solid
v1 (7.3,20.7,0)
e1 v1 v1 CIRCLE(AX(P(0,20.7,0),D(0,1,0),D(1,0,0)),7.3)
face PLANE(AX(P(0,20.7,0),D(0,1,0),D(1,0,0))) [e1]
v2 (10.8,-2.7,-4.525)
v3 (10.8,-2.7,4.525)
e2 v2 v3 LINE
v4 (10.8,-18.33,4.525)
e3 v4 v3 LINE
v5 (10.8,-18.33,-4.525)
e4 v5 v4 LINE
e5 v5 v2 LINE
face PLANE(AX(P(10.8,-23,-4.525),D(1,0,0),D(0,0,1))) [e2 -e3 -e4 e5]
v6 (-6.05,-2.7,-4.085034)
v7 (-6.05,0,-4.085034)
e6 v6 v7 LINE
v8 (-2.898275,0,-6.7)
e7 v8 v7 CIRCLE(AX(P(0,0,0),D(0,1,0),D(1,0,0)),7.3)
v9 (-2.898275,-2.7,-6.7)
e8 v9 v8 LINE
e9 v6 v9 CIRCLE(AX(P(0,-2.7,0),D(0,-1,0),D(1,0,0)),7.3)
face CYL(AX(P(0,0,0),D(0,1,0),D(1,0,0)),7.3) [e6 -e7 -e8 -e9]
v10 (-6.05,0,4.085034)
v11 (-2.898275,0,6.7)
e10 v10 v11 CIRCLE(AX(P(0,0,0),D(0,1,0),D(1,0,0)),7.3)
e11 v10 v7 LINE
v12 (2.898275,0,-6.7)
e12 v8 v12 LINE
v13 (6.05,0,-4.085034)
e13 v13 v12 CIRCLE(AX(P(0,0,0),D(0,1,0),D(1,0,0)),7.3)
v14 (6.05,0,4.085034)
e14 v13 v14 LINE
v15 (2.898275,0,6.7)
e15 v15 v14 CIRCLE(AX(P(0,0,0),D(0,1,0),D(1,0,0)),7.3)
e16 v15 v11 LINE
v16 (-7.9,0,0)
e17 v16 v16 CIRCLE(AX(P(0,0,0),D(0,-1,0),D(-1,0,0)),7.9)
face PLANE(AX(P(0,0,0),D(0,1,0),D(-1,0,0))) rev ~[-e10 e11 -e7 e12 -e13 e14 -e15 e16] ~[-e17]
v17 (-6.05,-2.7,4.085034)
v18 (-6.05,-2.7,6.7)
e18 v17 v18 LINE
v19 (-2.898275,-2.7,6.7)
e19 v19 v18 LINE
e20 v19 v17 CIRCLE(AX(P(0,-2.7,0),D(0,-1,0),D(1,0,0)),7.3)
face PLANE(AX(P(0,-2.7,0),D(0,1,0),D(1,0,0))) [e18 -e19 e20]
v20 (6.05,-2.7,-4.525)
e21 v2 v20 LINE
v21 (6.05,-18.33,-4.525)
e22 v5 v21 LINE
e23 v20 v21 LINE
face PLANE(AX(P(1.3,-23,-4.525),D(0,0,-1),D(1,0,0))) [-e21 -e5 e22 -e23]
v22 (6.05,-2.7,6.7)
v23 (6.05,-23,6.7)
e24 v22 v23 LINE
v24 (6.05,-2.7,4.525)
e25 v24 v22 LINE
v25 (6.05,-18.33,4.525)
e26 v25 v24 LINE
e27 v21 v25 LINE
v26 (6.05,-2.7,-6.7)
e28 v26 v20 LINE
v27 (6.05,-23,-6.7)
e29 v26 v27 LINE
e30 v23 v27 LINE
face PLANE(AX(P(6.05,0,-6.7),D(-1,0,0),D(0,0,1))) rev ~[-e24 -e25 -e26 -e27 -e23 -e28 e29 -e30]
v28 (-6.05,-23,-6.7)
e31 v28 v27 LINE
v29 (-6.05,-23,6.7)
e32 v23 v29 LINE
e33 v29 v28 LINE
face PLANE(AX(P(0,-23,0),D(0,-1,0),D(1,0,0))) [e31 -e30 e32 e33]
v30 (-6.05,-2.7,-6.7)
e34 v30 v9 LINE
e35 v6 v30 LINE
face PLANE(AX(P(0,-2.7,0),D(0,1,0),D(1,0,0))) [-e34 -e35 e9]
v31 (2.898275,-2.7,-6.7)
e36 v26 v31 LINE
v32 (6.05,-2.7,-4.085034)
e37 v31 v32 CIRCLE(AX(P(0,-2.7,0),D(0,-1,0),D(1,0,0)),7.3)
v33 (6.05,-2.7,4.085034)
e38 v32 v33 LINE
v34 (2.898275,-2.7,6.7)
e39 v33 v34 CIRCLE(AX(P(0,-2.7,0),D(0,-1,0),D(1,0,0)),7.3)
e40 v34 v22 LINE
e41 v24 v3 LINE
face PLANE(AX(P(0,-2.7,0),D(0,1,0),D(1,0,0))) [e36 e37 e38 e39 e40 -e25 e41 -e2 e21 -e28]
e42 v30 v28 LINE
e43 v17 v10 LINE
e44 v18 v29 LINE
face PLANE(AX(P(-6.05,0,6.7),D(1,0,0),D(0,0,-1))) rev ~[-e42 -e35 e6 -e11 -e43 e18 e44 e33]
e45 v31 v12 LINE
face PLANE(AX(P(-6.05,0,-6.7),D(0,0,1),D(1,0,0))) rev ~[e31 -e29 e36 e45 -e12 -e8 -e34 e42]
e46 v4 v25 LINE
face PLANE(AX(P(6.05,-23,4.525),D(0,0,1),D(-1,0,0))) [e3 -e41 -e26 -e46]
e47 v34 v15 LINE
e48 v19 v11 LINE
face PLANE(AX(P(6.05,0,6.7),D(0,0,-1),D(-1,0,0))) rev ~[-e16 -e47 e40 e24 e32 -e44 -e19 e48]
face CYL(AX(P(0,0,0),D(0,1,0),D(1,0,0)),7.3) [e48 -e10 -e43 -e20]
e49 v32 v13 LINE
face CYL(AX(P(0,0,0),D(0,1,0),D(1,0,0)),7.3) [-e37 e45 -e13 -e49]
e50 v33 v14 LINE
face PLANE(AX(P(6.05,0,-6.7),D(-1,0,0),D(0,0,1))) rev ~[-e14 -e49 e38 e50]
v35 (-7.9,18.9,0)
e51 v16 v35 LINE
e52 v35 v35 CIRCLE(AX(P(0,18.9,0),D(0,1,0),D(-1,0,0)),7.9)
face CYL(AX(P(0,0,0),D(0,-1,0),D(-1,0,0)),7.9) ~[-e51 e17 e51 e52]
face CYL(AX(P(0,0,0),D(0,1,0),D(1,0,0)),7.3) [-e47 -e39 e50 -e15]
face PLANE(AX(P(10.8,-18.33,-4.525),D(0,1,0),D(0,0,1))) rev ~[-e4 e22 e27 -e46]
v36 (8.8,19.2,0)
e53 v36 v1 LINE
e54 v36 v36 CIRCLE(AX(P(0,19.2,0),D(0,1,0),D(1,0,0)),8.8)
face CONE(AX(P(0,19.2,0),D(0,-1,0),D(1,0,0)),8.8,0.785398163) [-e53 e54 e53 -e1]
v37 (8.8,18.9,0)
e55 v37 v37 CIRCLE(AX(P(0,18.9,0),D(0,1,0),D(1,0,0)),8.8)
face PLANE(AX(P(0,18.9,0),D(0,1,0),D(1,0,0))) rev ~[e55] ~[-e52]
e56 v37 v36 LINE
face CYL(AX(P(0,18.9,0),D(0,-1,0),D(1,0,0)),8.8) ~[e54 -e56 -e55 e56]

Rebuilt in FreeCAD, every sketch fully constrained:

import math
import FreeCAD as App
import Part
import Sketcher
from FreeCAD import Vector


def edges_at(feature, points):
    """Names of the edges that pass closest to the given points."""
    edges = feature.Shape.Edges
    near = lambda p: min(range(len(edges)), key=lambda i: edges[i].distToShape(Part.Vertex(*p))[0])
    return sorted({f"Edge{near(p) + 1}" for p in points})

doc = App.newDocument("Part")
params = doc.addObject("Spreadsheet::Sheet", "Params")
for row, (alias, value) in enumerate([
    ("sketch1_diameter", "15.8 mm"),
    ("pad1_length", "18.9 mm"),
    ("sketch2_diameter", "17.6 mm"),
    ("pad2_length", "1.8 mm"),
    ("chamfer_size", "1.5 mm"),
    ("sketch3_width", "12.1 mm"),
    ("sketch3_height", "13.4 mm"),
    ("pad3_length", "23 mm"),
    ("sketch4_width", "9.5 mm"),
    ("sketch4_height", "9.05 mm"),
    ("pad4_length", "20.3 mm"),
    ("sketch5_width", "4.67 mm"),
    ("sketch5_height", "9.05 mm"),
    ("pocket1_length", "4.75 mm"),
    ("sketch6_radius", "8.35 mm"),
    ("sketch6_diameter", "14.6 mm"),
    ("pocket2_length", "2.7 mm"),
], start=1):
    params.set(f"A{row}", alias)
    params.set(f"B{row}", "=" + value)
    params.setAlias(f"B{row}", alias)

body = doc.addObject("PartDesign::Body", "Body")

# Sketch on XZ plane
sketch1 = body.newObject("Sketcher::SketchObject", "Sketch")
sketch1.AttachmentSupport = (doc.getObject("XZ_Plane"), [""])
sketch1.MapMode = "FlatFace"
sketch1.addGeometry(Part.Circle(Vector(0, 0, 0), Vector(0, 0, 1), 8), False)
sketch1.addConstraint([
    Sketcher.Constraint("Coincident", 0, 3, -1, 1),
    Sketcher.Constraint("Diameter", 0, 15.8),
])
sketch1.setExpression("Constraints[1]", "Params.sketch1_diameter")
pad1 = body.newObject("PartDesign::Pad", "Pad")
pad1.Profile = sketch1
pad1.setExpression("Length", "Params.pad1_length")
pad1.Reversed = True

# Sketch on XZ plane
sketch2 = body.newObject("Sketcher::SketchObject", "Sketch001")
sketch2.AttachmentSupport = (doc.getObject("XZ_Plane"), [""])
sketch2.MapMode = "FlatFace"
sketch2.AttachmentOffset = App.Placement(Vector(0, 0, -18.9), App.Rotation())
sketch2.addGeometry(Part.Circle(Vector(0, 0, 0), Vector(0, 0, 1), 9), False)
sketch2.addConstraint([
    Sketcher.Constraint("Coincident", 0, 3, -1, 1),
    Sketcher.Constraint("Diameter", 0, 17.6),
])
sketch2.setExpression("Constraints[1]", "Params.sketch2_diameter")
pad2 = body.newObject("PartDesign::Pad", "Pad001")
pad2.Profile = sketch2
pad2.setExpression("Length", "Params.pad2_length")
pad2.Reversed = True
doc.recompute()

chamfer = body.newObject("PartDesign::Chamfer", "Chamfer")
chamfer.Base = (pad2, edges_at(pad2, [(-8.8, 20.7, 0)]))
chamfer.setExpression("Size", "Params.chamfer_size")

# Sketch on XZ plane
sketch3 = body.newObject("Sketcher::SketchObject", "Sketch002")
sketch3.AttachmentSupport = (doc.getObject("XZ_Plane"), [""])
sketch3.MapMode = "FlatFace"
sketch3.addGeometry([
    Part.LineSegment(Vector(6, -7, 0), Vector(6, 7, 0)),
    Part.LineSegment(Vector(6, 7, 0), Vector(-6, 7, 0)),
    Part.LineSegment(Vector(-6, 7, 0), Vector(-6, -7, 0)),
    Part.LineSegment(Vector(-6, -7, 0), Vector(6, -7, 0)),
], False)
sketch3.addConstraint([
    Sketcher.Constraint("Coincident", 0, 2, 1, 1),
    Sketcher.Constraint("Coincident", 1, 2, 2, 1),
    Sketcher.Constraint("Coincident", 2, 2, 3, 1),
    Sketcher.Constraint("Coincident", 3, 2, 0, 1),
    Sketcher.Constraint("Vertical", 0),
    Sketcher.Constraint("Horizontal", 1),
    Sketcher.Constraint("Vertical", 2),
    Sketcher.Constraint("Horizontal", 3),
    Sketcher.Constraint("Symmetric", 0, 2, 2, 2, -1, 1),
    Sketcher.Constraint("DistanceX", 1, 2, 1, 1, 12.1),
    Sketcher.Constraint("DistanceY", 0, 1, 0, 2, 13.4),
])
sketch3.setExpression("Constraints[9]", "Params.sketch3_width")
sketch3.setExpression("Constraints[10]", "Params.sketch3_height")
pad3 = body.newObject("PartDesign::Pad", "Pad002")
pad3.Profile = sketch3
pad3.setExpression("Length", "Params.pad3_length")

# Sketch on XZ plane
sketch4 = body.newObject("Sketcher::SketchObject", "Sketch003")
sketch4.AttachmentSupport = (doc.getObject("XZ_Plane"), [""])
sketch4.MapMode = "FlatFace"
sketch4.AttachmentOffset = App.Placement(Vector(0, 0, 23), App.Rotation())
sketch4.addGeometry([
    Part.LineSegment(Vector(1, -5, 0), Vector(11, -5, 0)),
    Part.LineSegment(Vector(11, -5, 0), Vector(11, 5, 0)),
    Part.LineSegment(Vector(11, 5, 0), Vector(1, 5, 0)),
    Part.LineSegment(Vector(1, 5, 0), Vector(1, -5, 0)),
], False)
sketch4.addConstraint([
    Sketcher.Constraint("Coincident", 0, 2, 1, 1),
    Sketcher.Constraint("Coincident", 1, 2, 2, 1),
    Sketcher.Constraint("Coincident", 2, 2, 3, 1),
    Sketcher.Constraint("Coincident", 3, 2, 0, 1),
    Sketcher.Constraint("Horizontal", 0),
    Sketcher.Constraint("Vertical", 1),
    Sketcher.Constraint("Horizontal", 2),
    Sketcher.Constraint("Vertical", 3),
    Sketcher.Constraint("DistanceX", 0, 1, 0, 2, 9.5),
    Sketcher.Constraint("DistanceY", 1, 1, 1, 2, 9.05),
    Sketcher.Constraint("DistanceX", -1, 1, 0, 2, 10.8),
    Sketcher.Constraint("DistanceY", 0, 2, -1, 1, 4.525),
])
sketch4.setExpression("Constraints[8]", "Params.sketch4_width")
sketch4.setExpression("Constraints[9]", "Params.sketch4_height")
pad4 = body.newObject("PartDesign::Pad", "Pad003")
pad4.Profile = sketch4
pad4.setExpression("Length", "Params.pad4_length")
pad4.Reversed = True

# Sketch on YZ plane
sketch5 = body.newObject("Sketcher::SketchObject", "Sketch004")
sketch5.AttachmentSupport = (doc.getObject("YZ_Plane"), [""])
sketch5.MapMode = "FlatFace"
sketch5.AttachmentOffset = App.Placement(Vector(0, 0, 10.8), App.Rotation())
sketch5.addGeometry([
    Part.LineSegment(Vector(-23, 4.5, 0), Vector(-23, -4.5, 0)),
    Part.LineSegment(Vector(-23, -4.5, 0), Vector(-18.3, -4.5, 0)),
    Part.LineSegment(Vector(-18.3, -4.5, 0), Vector(-18.3, 4.5, 0)),
    Part.LineSegment(Vector(-18.3, 4.5, 0), Vector(-23, 4.5, 0)),
], False)
sketch5.addConstraint([
    Sketcher.Constraint("Coincident", 0, 2, 1, 1),
    Sketcher.Constraint("Coincident", 1, 2, 2, 1),
    Sketcher.Constraint("Coincident", 2, 2, 3, 1),
    Sketcher.Constraint("Coincident", 3, 2, 0, 1),
    Sketcher.Constraint("Vertical", 0),
    Sketcher.Constraint("Horizontal", 1),
    Sketcher.Constraint("Vertical", 2),
    Sketcher.Constraint("Horizontal", 3),
    Sketcher.Constraint("DistanceX", 1, 1, 1, 2, 4.67),
    Sketcher.Constraint("DistanceX", 0, 2, -1, 1, 23.0),
    Sketcher.Constraint("DistanceY", 0, 2, 0, 1, 9.05),
    Sketcher.Constraint("DistanceY", 0, 2, -1, 1, 4.525),
])
sketch5.setExpression("Constraints[8]", "Params.sketch5_width")
sketch5.setExpression("Constraints[10]", "Params.sketch5_height")
pocket1 = body.newObject("PartDesign::Pocket", "Pocket")
pocket1.Profile = sketch5
pocket1.setExpression("Length", "Params.pocket1_length")

# Sketch on XZ plane
sketch6 = body.newObject("Sketcher::SketchObject", "Sketch005")
sketch6.AttachmentSupport = (doc.getObject("XZ_Plane"), [""])
sketch6.MapMode = "FlatFace"
sketch6.addGeometry([
    Part.LineSegment(Vector(6, -5.8, 0), Vector(6, -6.7, 0)),  # 0
    Part.LineSegment(Vector(6, -6.7, 0), Vector(5, -6.7, 0)),  # 1
    Part.ArcOfCircle(Part.Circle(Vector(0, 0, 0), Vector(0, 0, 1), 8.3), math.radians(-127), math.radians(-53)),  # 2
    Part.LineSegment(Vector(-5, -6.7, 0), Vector(-6, -6.7, 0)),  # 3
    Part.LineSegment(Vector(-6, -6.7, 0), Vector(-6, -5.8, 0)),  # 4
    Part.ArcOfCircle(Part.Circle(Vector(0, 0, 0), Vector(0, 0, 1), 8.3), math.radians(136), math.radians(224)),  # 5
    Part.LineSegment(Vector(-6, 5.8, 0), Vector(-6, 6.7, 0)),  # 6
    Part.LineSegment(Vector(-6, 6.7, 0), Vector(-5, 6.7, 0)),  # 7
    Part.ArcOfCircle(Part.Circle(Vector(0, 0, 0), Vector(0, 0, 1), 8.3), math.radians(53), math.radians(127)),  # 8
    Part.LineSegment(Vector(5, 6.7, 0), Vector(6, 6.7, 0)),  # 9
    Part.LineSegment(Vector(6, 6.7, 0), Vector(6, 5.8, 0)),  # 10
    Part.ArcOfCircle(Part.Circle(Vector(0, 0, 0), Vector(0, 0, 1), 8.3), math.radians(-44), math.radians(44)),  # 11
    Part.Circle(Vector(0, 0, 0), Vector(0, 0, 1), 7.3),  # 12
], False)
sketch6.addConstraint([
    Sketcher.Constraint("Coincident", 0, 2, 1, 1),
    Sketcher.Constraint("Coincident", 1, 2, 2, 2),
    Sketcher.Constraint("Coincident", 2, 1, 3, 1),
    Sketcher.Constraint("Coincident", 3, 2, 4, 1),
    Sketcher.Constraint("Coincident", 4, 2, 5, 2),
    Sketcher.Constraint("Coincident", 5, 1, 6, 1),
    Sketcher.Constraint("Coincident", 6, 2, 7, 1),
    Sketcher.Constraint("Coincident", 7, 2, 8, 2),
    Sketcher.Constraint("Coincident", 8, 1, 9, 1),
    Sketcher.Constraint("Coincident", 9, 2, 10, 1),
    Sketcher.Constraint("Coincident", 10, 2, 11, 2),
    Sketcher.Constraint("Coincident", 11, 1, 0, 1),
    Sketcher.Constraint("Vertical", 0),
    Sketcher.Constraint("Horizontal", 1),
    Sketcher.Constraint("Horizontal", 3),
    Sketcher.Constraint("Vertical", 4),
    Sketcher.Constraint("Vertical", 6),
    Sketcher.Constraint("Horizontal", 7),
    Sketcher.Constraint("Horizontal", 9),
    Sketcher.Constraint("Vertical", 10),
    Sketcher.Constraint("Coincident", 2, 3, -1, 1),
    Sketcher.Constraint("Coincident", 5, 3, -1, 1),
    Sketcher.Constraint("Coincident", 8, 3, -1, 1),
    Sketcher.Constraint("Coincident", 11, 3, -1, 1),
    Sketcher.Constraint("Coincident", 12, 3, -1, 1),
    Sketcher.Constraint("Equal", 2, 5),
    Sketcher.Constraint("Equal", 5, 8),
    Sketcher.Constraint("Equal", 8, 11),
    Sketcher.Constraint("Symmetric", 0, 2, 6, 2, -1, 1),
    Sketcher.Constraint("Symmetric", 3, 2, 9, 2, -1, 1),
    Sketcher.Constraint("Symmetric", 0, 2, 3, 2, -2),
    Sketcher.Constraint("Radius", 2, 8.35),
    Sketcher.Constraint("Diameter", 12, 14.6),
    Sketcher.Constraint("DistanceY", 0, 2, -1, 1, 6.7),
    Sketcher.Constraint("DistanceY", 0, 2, 0, 1, 0.945),
])
sketch6.setExpression("Constraints[31]", "Params.sketch6_radius")
sketch6.setExpression("Constraints[32]", "Params.sketch6_diameter")
pocket2 = body.newObject("PartDesign::Pocket", "Pocket001")
pocket2.Profile = sketch6
pocket2.setExpression("Length", "Params.pocket2_length")
pocket2.Reversed = True

doc.recompute()
